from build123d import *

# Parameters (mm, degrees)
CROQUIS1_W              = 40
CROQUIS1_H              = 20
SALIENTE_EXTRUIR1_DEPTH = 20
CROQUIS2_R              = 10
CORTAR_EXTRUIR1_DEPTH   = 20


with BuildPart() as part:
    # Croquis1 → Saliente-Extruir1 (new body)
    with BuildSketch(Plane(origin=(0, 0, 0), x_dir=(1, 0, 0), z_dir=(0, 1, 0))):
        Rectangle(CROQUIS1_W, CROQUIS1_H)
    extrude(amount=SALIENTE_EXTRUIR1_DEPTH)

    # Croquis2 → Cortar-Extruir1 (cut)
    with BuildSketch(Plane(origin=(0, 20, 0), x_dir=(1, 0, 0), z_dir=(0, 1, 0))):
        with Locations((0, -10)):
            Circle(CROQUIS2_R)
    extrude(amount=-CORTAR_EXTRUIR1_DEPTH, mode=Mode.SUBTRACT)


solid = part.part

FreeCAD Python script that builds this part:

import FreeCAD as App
import Part
import Sketcher

V = App.Vector


def add_polygon(sketch, points):
    """Adds a closed chain of lines whose ends are joined by coincident constraints."""
    first, n = sketch.GeometryCount, len(points)
    for a, b in zip(points, points[1:] + points[:1]):
        sketch.addGeometry(Part.LineSegment(App.Vector(*a, 0), App.Vector(*b, 0)), False)
    for i in range(n):
        sketch.addConstraint(Sketcher.Constraint("Coincident", first + i, 2, first + (i + 1) % n, 1))

doc = App.newDocument("Part")
body = doc.addObject("PartDesign::Body", "Body")

sketch1 = body.newObject("Sketcher::SketchObject", "Sketch")
sketch1.AttachmentSupport = (doc.getObject("XZ_Plane"), [""])
sketch1.MapMode = "FlatFace"
add_polygon(sketch1, [(-20, -10), (-20, 10), (20, 10), (20, -10)])
sketch1.addConstraint([
    Sketcher.Constraint("Vertical", 0),
    Sketcher.Constraint("Horizontal", 1),
    Sketcher.Constraint("Vertical", 2),
    Sketcher.Constraint("Horizontal", 3),
    Sketcher.Constraint("Symmetric", 0, 2, 2, 2, -1, 1),
    Sketcher.Constraint("DistanceX", 1, 1, 1, 2, 40.0),
    Sketcher.Constraint("DistanceY", 0, 1, 0, 2, 20.0),
])
pad1 = body.newObject("PartDesign::Pad", "Pad")
pad1.Profile = sketch1
pad1.Length = 20
pad1.Reversed = True

sketch2 = body.newObject("Sketcher::SketchObject", "Sketch001")
sketch2.AttachmentSupport = (doc.getObject("XZ_Plane"), [""])
sketch2.MapMode = "FlatFace"
sketch2.AttachmentOffset = App.Placement(V(0, 0, -20), App.Rotation())
sketch2.addGeometry(Part.Circle(V(0, 10, 0), V(0, 0, 1), 10), False)
sketch2.addConstraint([
    Sketcher.Constraint("PointOnObject", 0, 3, -2),
    Sketcher.Constraint("Diameter", 0, 20.0),
    Sketcher.Constraint("DistanceY", -1, 1, 0, 3, 10.0),
])
pocket1 = body.newObject("PartDesign::Pocket", "Pocket")
pocket1.Profile = sketch2
pocket1.Length = 20
pocket1.Reversed = True

doc.recompute()
